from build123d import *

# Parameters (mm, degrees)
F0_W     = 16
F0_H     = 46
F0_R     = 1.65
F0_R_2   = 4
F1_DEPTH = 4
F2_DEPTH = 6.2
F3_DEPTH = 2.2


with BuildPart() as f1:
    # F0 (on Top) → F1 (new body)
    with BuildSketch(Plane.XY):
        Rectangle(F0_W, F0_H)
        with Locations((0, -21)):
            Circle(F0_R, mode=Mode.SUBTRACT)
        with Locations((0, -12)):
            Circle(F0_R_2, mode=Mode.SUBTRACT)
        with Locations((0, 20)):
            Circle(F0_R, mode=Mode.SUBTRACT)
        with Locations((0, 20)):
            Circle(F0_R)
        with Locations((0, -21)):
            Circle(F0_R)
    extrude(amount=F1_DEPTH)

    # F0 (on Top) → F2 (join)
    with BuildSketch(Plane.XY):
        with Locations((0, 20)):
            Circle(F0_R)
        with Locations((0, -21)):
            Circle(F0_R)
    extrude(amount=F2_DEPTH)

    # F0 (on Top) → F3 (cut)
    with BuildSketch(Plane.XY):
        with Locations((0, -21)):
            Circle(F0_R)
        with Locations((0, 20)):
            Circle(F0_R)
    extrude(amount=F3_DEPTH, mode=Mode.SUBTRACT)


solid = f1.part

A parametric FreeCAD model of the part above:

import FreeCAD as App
import Part
import Sketcher

V = App.Vector
Q = App.Units.Quantity

doc = App.newDocument("Part")
body = doc.addObject("PartDesign::Body", "Body")

# Sketch on XY plane
sketch1 = doc.addObject("Sketcher::SketchObject", "Sketch")
body.addObject(sketch1)
sketch1.AttachmentSupport = (doc.XY_Plane, [""])
sketch1.MapMode = "FlatFace"
sketch1.addGeometry(Part.LineSegment(V(-8, 23, 0), V(-8, -23, 0)), False)
sketch1.addGeometry(Part.LineSegment(V(-8, -23, 0), V(8, -23, 0)), False)
sketch1.addGeometry(Part.LineSegment(V(8, -23, 0), V(8, 23, 0)), False)
sketch1.addGeometry(Part.LineSegment(V(8, 23, 0), V(-8, 23, 0)), False)
sketch1.addGeometry(Part.Circle(V(0, -12, 0), V(0, 0, 1), 4), False)
sketch1.addConstraint(Sketcher.Constraint("Coincident", 0, 2, 1, 1))
sketch1.addConstraint(Sketcher.Constraint("Coincident", 1, 2, 2, 1))
sketch1.addConstraint(Sketcher.Constraint("Coincident", 2, 2, 3, 1))
sketch1.addConstraint(Sketcher.Constraint("Coincident", 3, 2, 0, 1))
sketch1.addConstraint(Sketcher.Constraint("Vertical", 0))
sketch1.addConstraint(Sketcher.Constraint("Horizontal", 1))
sketch1.addConstraint(Sketcher.Constraint("Vertical", 2))
sketch1.addConstraint(Sketcher.Constraint("Horizontal", 3))
sketch1.addConstraint(Sketcher.Constraint("Symmetric", 0, 2, 2, 2, -1, 1))
sketch1.addConstraint(Sketcher.Constraint("PointOnObject", 4, 3, -2))
sketch1.addConstraint(Sketcher.Constraint("Diameter", 4, Q("8 mm")))
sketch1.addConstraint(Sketcher.Constraint("DistanceX", 1, 1, 1, 2, Q("16 mm")))
sketch1.addConstraint(Sketcher.Constraint("DistanceY", 0, 2, 0, 1, Q("46 mm")))
sketch1.addConstraint(Sketcher.Constraint("DistanceY", 4, 3, -1, 1, Q("12 mm")))
pad1 = doc.addObject("PartDesign::Pad", "Pad")
body.addObject(pad1)
pad1.Profile = sketch1
pad1.Length = 4

# Sketch on XY plane
sketch2 = doc.addObject("Sketcher::SketchObject", "Sketch001")
body.addObject(sketch2)
sketch2.AttachmentSupport = (doc.XY_Plane, [""])
sketch2.MapMode = "FlatFace"
sketch2.addGeometry(Part.Circle(V(0, 20, 0), V(0, 0, 1), 1.65), False)
sketch2.addGeometry(Part.Circle(V(0, -21, 0), V(0, 0, 1), 1.65), False)
sketch2.addConstraint(Sketcher.Constraint("Equal", 0, 1))
sketch2.addConstraint(Sketcher.Constraint("PointOnObject", 0, 3, -2))
sketch2.addConstraint(Sketcher.Constraint("PointOnObject", 1, 3, -2))
sketch2.addConstraint(Sketcher.Constraint("Diameter", 0, Q("3.3 mm")))
sketch2.addConstraint(Sketcher.Constraint("DistanceY", -1, 1, 0, 3, Q("20 mm")))
sketch2.addConstraint(Sketcher.Constraint("DistanceY", 1, 3, -1, 1, Q("21 mm")))
pad2 = doc.addObject("PartDesign::Pad", "Pad001")
body.addObject(pad2)
pad2.Profile = sketch2
pad2.Length = 6.2

# Sketch on XY plane
sketch3 = doc.addObject("Sketcher::SketchObject", "Sketch002")
body.addObject(sketch3)
sketch3.AttachmentSupport = (doc.XY_Plane, [""])
sketch3.MapMode = "FlatFace"
sketch3.addGeometry(Part.Circle(V(0, -21, 0), V(0, 0, 1), 1.65), False)
sketch3.addGeometry(Part.Circle(V(0, 20, 0), V(0, 0, 1), 1.65), False)
sketch3.addConstraint(Sketcher.Constraint("Equal", 0, 1))
sketch3.addConstraint(Sketcher.Constraint("PointOnObject", 0, 3, -2))
sketch3.addConstraint(Sketcher.Constraint("PointOnObject", 1, 3, -2))
sketch3.addConstraint(Sketcher.Constraint("Diameter", 0, Q("3.3 mm")))
sketch3.addConstraint(Sketcher.Constraint("DistanceY", 0, 3, -1, 1, Q("21 mm")))
sketch3.addConstraint(Sketcher.Constraint("DistanceY", -1, 1, 1, 3, Q("20 mm")))
pocket1 = doc.addObject("PartDesign::Pocket", "Pocket")
body.addObject(pocket1)
pocket1.Profile = sketch3
pocket1.Length = 2.2
pocket1.Reversed = True

doc.recompute()
